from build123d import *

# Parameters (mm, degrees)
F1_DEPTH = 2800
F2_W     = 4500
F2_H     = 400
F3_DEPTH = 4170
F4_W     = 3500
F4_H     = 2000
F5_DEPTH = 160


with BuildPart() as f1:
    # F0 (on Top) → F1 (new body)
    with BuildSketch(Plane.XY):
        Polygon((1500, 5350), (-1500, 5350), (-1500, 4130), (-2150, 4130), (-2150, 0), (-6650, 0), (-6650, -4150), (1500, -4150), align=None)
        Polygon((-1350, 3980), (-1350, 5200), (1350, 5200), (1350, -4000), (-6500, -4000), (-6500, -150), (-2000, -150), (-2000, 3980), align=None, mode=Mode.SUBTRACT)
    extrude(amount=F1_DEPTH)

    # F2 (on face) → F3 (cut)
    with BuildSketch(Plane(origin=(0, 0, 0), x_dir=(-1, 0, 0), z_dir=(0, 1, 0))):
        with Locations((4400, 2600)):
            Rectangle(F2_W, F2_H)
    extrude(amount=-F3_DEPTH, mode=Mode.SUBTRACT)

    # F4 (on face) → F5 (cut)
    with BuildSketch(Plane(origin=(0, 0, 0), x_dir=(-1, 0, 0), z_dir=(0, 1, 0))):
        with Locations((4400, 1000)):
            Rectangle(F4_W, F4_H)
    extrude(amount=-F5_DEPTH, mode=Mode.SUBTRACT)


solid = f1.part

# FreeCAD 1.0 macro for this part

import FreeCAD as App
import Part
import Sketcher

V = App.Vector

doc = App.newDocument("Part")
params = doc.addObject("Spreadsheet::Sheet", "Params")
for row, (alias, value) in enumerate([
    ("sketch1_width", "3000 mm"),
    ("sketch1_width2", "650 mm"),
    ("sketch1_width3", "4500 mm"),
    ("sketch1_width4", "2700 mm"),
    ("sketch1_height", "1220 mm"),
    ("pad1_length", "2800 mm"),
    ("sketch2_width", "4500 mm"),
    ("sketch2_height", "400 mm"),
    ("pocket1_length", "4170 mm"),
    ("sketch3_width", "3500 mm"),
    ("sketch3_height", "2000 mm"),
    ("pocket2_length", "160 mm"),
], start=1):
    params.set(f"A{row}", alias)
    params.set(f"B{row}", "=" + value)
    params.setAlias(f"B{row}", alias)

body = doc.addObject("PartDesign::Body", "Body")

# Sketch on XY plane
sketch1 = doc.addObject("Sketcher::SketchObject", "Sketch")
body.addObject(sketch1)
sketch1.AttachmentSupport = (doc.XY_Plane, [""])
sketch1.MapMode = "FlatFace"
sketch1.addGeometry([
    Part.LineSegment(V(1500, 5350, 0), V(-1500, 5350, 0)),  # 0
    Part.LineSegment(V(-1500, 5350, 0), V(-1500, 4130, 0)),  # 1
    Part.LineSegment(V(-1500, 4130, 0), V(-2150, 4130, 0)),  # 2
    Part.LineSegment(V(-2150, 4130, 0), V(-2150, 0, 0)),  # 3
    Part.LineSegment(V(-2150, 0, 0), V(-6650, 0, 0)),  # 4
    Part.LineSegment(V(-6650, 0, 0), V(-6650, -4150, 0)),  # 5
    Part.LineSegment(V(-6650, -4150, 0), V(1500, -4150, 0)),  # 6
    Part.LineSegment(V(1500, -4150, 0), V(1500, 5350, 0)),  # 7
    Part.LineSegment(V(-2000, 3980, 0), V(-1350, 3980, 0)),  # 8
    Part.LineSegment(V(-1350, 3980, 0), V(-1350, 5200, 0)),  # 9
    Part.LineSegment(V(-1350, 5200, 0), V(1350, 5200, 0)),  # 10
    Part.LineSegment(V(1350, 5200, 0), V(1350, -4000, 0)),  # 11
    Part.LineSegment(V(1350, -4000, 0), V(-6500, -4000, 0)),  # 12
    Part.LineSegment(V(-6500, -4000, 0), V(-6500, -150, 0)),  # 13
    Part.LineSegment(V(-6500, -150, 0), V(-2000, -150, 0)),  # 14
    Part.LineSegment(V(-2000, -150, 0), V(-2000, 3980, 0)),  # 15
], False)
sketch1.addConstraint([
    Sketcher.Constraint("Coincident", 0, 2, 1, 1),
    Sketcher.Constraint("Coincident", 1, 2, 2, 1),
    Sketcher.Constraint("Coincident", 2, 2, 3, 1),
    Sketcher.Constraint("Coincident", 3, 2, 4, 1),
    Sketcher.Constraint("Coincident", 4, 2, 5, 1),
    Sketcher.Constraint("Coincident", 5, 2, 6, 1),
    Sketcher.Constraint("Coincident", 6, 2, 7, 1),
    Sketcher.Constraint("Coincident", 7, 2, 0, 1),
    Sketcher.Constraint("Coincident", 8, 2, 9, 1),
    Sketcher.Constraint("Coincident", 9, 2, 10, 1),
    Sketcher.Constraint("Coincident", 10, 2, 11, 1),
    Sketcher.Constraint("Coincident", 11, 2, 12, 1),
    Sketcher.Constraint("Coincident", 12, 2, 13, 1),
    Sketcher.Constraint("Coincident", 13, 2, 14, 1),
    Sketcher.Constraint("Coincident", 14, 2, 15, 1),
    Sketcher.Constraint("Coincident", 15, 2, 8, 1),
    Sketcher.Constraint("Horizontal", 0),
    Sketcher.Constraint("Vertical", 1),
    Sketcher.Constraint("Horizontal", 2),
    Sketcher.Constraint("Vertical", 3),
    Sketcher.Constraint("Horizontal", 4),
    Sketcher.Constraint("Vertical", 5),
    Sketcher.Constraint("Horizontal", 6),
    Sketcher.Constraint("Vertical", 7),
    Sketcher.Constraint("Horizontal", 8),
    Sketcher.Constraint("Vertical", 9),
    Sketcher.Constraint("Horizontal", 10),
    Sketcher.Constraint("Vertical", 11),
    Sketcher.Constraint("Horizontal", 12),
    Sketcher.Constraint("Vertical", 13),
    Sketcher.Constraint("Horizontal", 14),
    Sketcher.Constraint("Vertical", 15),
    Sketcher.Constraint("PointOnObject", 3, 2, -1),
    Sketcher.Constraint("Equal", 2, 8),
    Sketcher.Constraint("Equal", 4, 14),
    Sketcher.Constraint("Equal", 1, 9),
    Sketcher.Constraint("Equal", 3, 15),
    Sketcher.Constraint("DistanceX", 0, 2, 0, 1, 3000.0),
    Sketcher.Constraint("DistanceX", 2, 2, 2, 1, 650.0),
    Sketcher.Constraint("DistanceX", 4, 2, 4, 1, 4500.0),
    Sketcher.Constraint("DistanceX", 10, 1, 10, 2, 2700.0),
    Sketcher.Constraint("DistanceY", 1, 2, 1, 1, 1220.0),
    Sketcher.Constraint("DistanceY", 3, 2, 3, 1, 4130.0),
    Sketcher.Constraint("DistanceY", 5, 2, 5, 1, 4150.0),
    Sketcher.Constraint("DistanceY", 11, 2, 11, 1, 9200.0),
    Sketcher.Constraint("DistanceX", 0, 2, -1, 1, 1500.0),
    Sketcher.Constraint("DistanceX", 8, 2, -1, 1, 1350.0),
    Sketcher.Constraint("DistanceY", -1, 1, 8, 2, 3980.0),
])
sketch1.setExpression("Constraints[37]", "Params.sketch1_width")
sketch1.setExpression("Constraints[38]", "Params.sketch1_width2")
sketch1.setExpression("Constraints[39]", "Params.sketch1_width3")
sketch1.setExpression("Constraints[40]", "Params.sketch1_width4")
sketch1.setExpression("Constraints[41]", "Params.sketch1_height")
pad1 = doc.addObject("PartDesign::Pad", "Pad")
body.addObject(pad1)
pad1.Profile = sketch1
pad1.setExpression("Length", "Params.pad1_length")

# Sketch on XZ plane
sketch2 = doc.addObject("Sketcher::SketchObject", "Sketch001")
body.addObject(sketch2)
sketch2.AttachmentSupport = (doc.XZ_Plane, [""])
sketch2.MapMode = "FlatFace"
sketch2.addGeometry([
    Part.LineSegment(V(-2150, 2800, 0), V(-2150, 2400, 0)),
    Part.LineSegment(V(-2150, 2400, 0), V(-6650, 2400, 0)),
    Part.LineSegment(V(-6650, 2400, 0), V(-6650, 2800, 0)),
    Part.LineSegment(V(-6650, 2800, 0), V(-2150, 2800, 0)),
], False)
sketch2.addConstraint([
    Sketcher.Constraint("Coincident", 0, 2, 1, 1),
    Sketcher.Constraint("Coincident", 1, 2, 2, 1),
    Sketcher.Constraint("Coincident", 2, 2, 3, 1),
    Sketcher.Constraint("Coincident", 3, 2, 0, 1),
    Sketcher.Constraint("Vertical", 0),
    Sketcher.Constraint("Horizontal", 1),
    Sketcher.Constraint("Vertical", 2),
    Sketcher.Constraint("Horizontal", 3),
    Sketcher.Constraint("DistanceX", 1, 2, 1, 1, 4500.0),
    Sketcher.Constraint("DistanceY", 0, 2, 0, 1, 400.0),
    Sketcher.Constraint("DistanceX", 0, 2, -1, 1, 2150.0),
    Sketcher.Constraint("DistanceY", -1, 1, 0, 2, 2400.0),
])
sketch2.setExpression("Constraints[8]", "Params.sketch2_width")
sketch2.setExpression("Constraints[9]", "Params.sketch2_height")
pocket1 = doc.addObject("PartDesign::Pocket", "Pocket")
body.addObject(pocket1)
pocket1.Profile = sketch2
pocket1.setExpression("Length", "Params.pocket1_length")
pocket1.Reversed = True

# Sketch on XZ plane
sketch3 = doc.addObject("Sketcher::SketchObject", "Sketch002")
body.addObject(sketch3)
sketch3.AttachmentSupport = (doc.XZ_Plane, [""])
sketch3.MapMode = "FlatFace"
sketch3.addGeometry([
    Part.LineSegment(V(-2650, 2000, 0), V(-2650, 0, 0)),
    Part.LineSegment(V(-2650, 0, 0), V(-6150, 0, 0)),
    Part.LineSegment(V(-6150, 0, 0), V(-6150, 2000, 0)),
    Part.LineSegment(V(-6150, 2000, 0), V(-2650, 2000, 0)),
], False)
sketch3.addConstraint([
    Sketcher.Constraint("Coincident", 0, 2, 1, 1),
    Sketcher.Constraint("Coincident", 1, 2, 2, 1),
    Sketcher.Constraint("Coincident", 2, 2, 3, 1),
    Sketcher.Constraint("Coincident", 3, 2, 0, 1),
    Sketcher.Constraint("Vertical", 0),
    Sketcher.Constraint("Horizontal", 1),
    Sketcher.Constraint("Vertical", 2),
    Sketcher.Constraint("Horizontal", 3),
    Sketcher.Constraint("PointOnObject", 0, 2, -1),
    Sketcher.Constraint("DistanceX", 1, 2, 1, 1, 3500.0),
    Sketcher.Constraint("DistanceY", 0, 2, 0, 1, 2000.0),
    Sketcher.Constraint("DistanceX", 0, 2, -1, 1, 2650.0),
])
sketch3.setExpression("Constraints[9]", "Params.sketch3_width")
sketch3.setExpression("Constraints[10]", "Params.sketch3_height")
pocket2 = doc.addObject("PartDesign::Pocket", "Pocket001")
body.addObject(pocket2)
pocket2.Profile = sketch3
pocket2.setExpression("Length", "Params.pocket2_length")
pocket2.Reversed = True

doc.recompute()
